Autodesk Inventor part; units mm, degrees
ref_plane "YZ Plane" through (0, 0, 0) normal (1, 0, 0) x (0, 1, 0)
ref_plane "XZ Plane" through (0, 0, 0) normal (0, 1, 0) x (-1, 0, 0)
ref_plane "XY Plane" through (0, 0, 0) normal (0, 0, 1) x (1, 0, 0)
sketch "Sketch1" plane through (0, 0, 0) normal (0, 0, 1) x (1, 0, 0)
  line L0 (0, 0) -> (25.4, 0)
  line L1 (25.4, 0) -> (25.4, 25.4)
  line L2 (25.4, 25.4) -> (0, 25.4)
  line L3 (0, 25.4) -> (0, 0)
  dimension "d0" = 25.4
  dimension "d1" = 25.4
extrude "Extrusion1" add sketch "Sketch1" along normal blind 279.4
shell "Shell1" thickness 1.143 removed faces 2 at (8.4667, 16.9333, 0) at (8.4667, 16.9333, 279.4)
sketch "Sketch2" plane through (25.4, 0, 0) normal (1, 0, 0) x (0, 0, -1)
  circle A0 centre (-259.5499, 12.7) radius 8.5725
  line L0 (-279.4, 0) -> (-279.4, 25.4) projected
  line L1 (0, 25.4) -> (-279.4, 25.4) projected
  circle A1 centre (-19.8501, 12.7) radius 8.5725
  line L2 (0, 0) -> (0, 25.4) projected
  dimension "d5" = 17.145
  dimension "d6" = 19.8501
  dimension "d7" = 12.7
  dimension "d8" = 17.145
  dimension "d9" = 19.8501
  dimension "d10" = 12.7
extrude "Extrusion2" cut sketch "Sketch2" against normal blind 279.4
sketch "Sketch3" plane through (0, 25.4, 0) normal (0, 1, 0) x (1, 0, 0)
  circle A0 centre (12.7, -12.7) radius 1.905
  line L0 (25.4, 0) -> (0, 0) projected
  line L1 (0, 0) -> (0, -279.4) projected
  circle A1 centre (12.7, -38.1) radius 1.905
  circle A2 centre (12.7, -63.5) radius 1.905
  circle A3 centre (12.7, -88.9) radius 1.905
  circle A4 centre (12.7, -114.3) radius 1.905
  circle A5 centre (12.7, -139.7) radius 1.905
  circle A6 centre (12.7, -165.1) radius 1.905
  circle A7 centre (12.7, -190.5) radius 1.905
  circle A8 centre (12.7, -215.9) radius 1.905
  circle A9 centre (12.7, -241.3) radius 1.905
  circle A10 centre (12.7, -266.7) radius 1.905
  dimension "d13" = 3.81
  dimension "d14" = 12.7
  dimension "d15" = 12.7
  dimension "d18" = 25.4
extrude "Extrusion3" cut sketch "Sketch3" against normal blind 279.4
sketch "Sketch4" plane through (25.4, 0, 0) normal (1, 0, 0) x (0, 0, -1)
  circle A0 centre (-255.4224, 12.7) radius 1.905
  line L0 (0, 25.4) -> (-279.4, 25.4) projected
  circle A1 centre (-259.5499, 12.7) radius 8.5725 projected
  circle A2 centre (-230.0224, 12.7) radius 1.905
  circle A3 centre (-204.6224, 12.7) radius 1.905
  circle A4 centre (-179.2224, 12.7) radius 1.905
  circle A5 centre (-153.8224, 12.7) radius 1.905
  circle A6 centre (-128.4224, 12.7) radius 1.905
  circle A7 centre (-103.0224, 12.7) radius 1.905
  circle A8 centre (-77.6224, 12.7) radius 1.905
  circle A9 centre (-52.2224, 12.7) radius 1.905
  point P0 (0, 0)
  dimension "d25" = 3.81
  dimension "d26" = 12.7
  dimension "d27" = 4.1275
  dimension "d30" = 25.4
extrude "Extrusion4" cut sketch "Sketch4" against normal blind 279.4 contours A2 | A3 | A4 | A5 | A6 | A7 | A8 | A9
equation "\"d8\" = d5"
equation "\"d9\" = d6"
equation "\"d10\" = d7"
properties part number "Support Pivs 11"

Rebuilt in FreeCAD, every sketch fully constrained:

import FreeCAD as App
import Part
import Sketcher
from FreeCAD import Vector
Q = App.Units.Quantity


def faces_at(feature, points):
    """Names of the faces that lie closest to the given points."""
    faces = feature.Shape.Faces
    near = lambda p: min(range(len(faces)), key=lambda i: faces[i].distToShape(Part.Vertex(*p))[0])
    return sorted({f"Face{near(p) + 1}" for p in points})


def add_polygon(sketch, points):
    """Adds a closed chain of lines whose ends are joined by coincident constraints."""
    first, n = sketch.GeometryCount, len(points)
    for a, b in zip(points, points[1:] + points[:1]):
        sketch.addGeometry(Part.LineSegment(App.Vector(*a, 0), App.Vector(*b, 0)), False)
    for i in range(n):
        sketch.addConstraint(Sketcher.Constraint("Coincident", first + i, 2, first + (i + 1) % n, 1))

doc = App.newDocument("Part")
body = doc.addObject("PartDesign::Body", "Body")

# Sketch on XY plane
sketch1 = body.newObject("Sketcher::SketchObject", "Sketch")
sketch1.AttachmentSupport = (doc.getObject("XY_Plane"), [""])
sketch1.MapMode = "FlatFace"
add_polygon(sketch1, [(0, 25), (0, 0), (25, 0), (25, 25)])  # lines 0-3
sketch1.addConstraint(Sketcher.Constraint("Vertical", 0))
sketch1.addConstraint(Sketcher.Constraint("Horizontal", 1))
sketch1.addConstraint(Sketcher.Constraint("Vertical", 2))
sketch1.addConstraint(Sketcher.Constraint("Horizontal", 3))
sketch1.addConstraint(Sketcher.Constraint("Coincident", 0, 2, -1, 1))
sketch1.addConstraint(Sketcher.Constraint("Equal", 3, 0))
sketch1.addConstraint(Sketcher.Constraint("DistanceX", 1, 1, 1, 2, Q("1 in")))
pad1 = body.newObject("PartDesign::Pad", "Pad")
pad1.Profile = sketch1
pad1.Length = Q("11 in")
doc.recompute()

thickness = body.newObject("PartDesign::Thickness", "Thickness")
thickness.Base = (pad1, faces_at(pad1, [(8.467, 16.933, 0), (8.467, 16.933, 279.4)]))
thickness.Value = Q("0.045 in")
thickness.Reversed = True
thickness.Join = "Intersection"

# Sketch on YZ plane
sketch2 = body.newObject("Sketcher::SketchObject", "Sketch001")
sketch2.AttachmentSupport = (doc.getObject("YZ_Plane"), [""])
sketch2.MapMode = "FlatFace"
sketch2.AttachmentOffset = App.Placement(Vector(0, 0, 1 * 25.4), App.Rotation())
sketch2.addGeometry(Part.Circle(Vector(13, 260, 0), Vector(0, 0, 1), 9), False)
sketch2.addGeometry(Part.Circle(Vector(13, 20, 0), Vector(0, 0, 1), 9), False)
sketch2.addConstraint(Sketcher.Constraint("Equal", 0, 1))
sketch2.addConstraint(Sketcher.Constraint("Vertical", 0, 3, 1, 3))
sketch2.addConstraint(Sketcher.Constraint("Diameter", 0, Q("0.675 in")))
sketch2.addConstraint(Sketcher.Constraint("DistanceX", -1, 1, 0, 3, Q("0.5 in")))
sketch2.addConstraint(Sketcher.Constraint("DistanceY", -1, 1, 1, 3, Q("0.7815 in")))
sketch2.addConstraint(Sketcher.Constraint("DistanceY", 1, 3, 0, 3, Q("9.437 in")))
pocket1 = body.newObject("PartDesign::Pocket", "Pocket")
pocket1.Profile = sketch2
pocket1.Length = Q("11 in")

# Sketch on XZ plane
sketch3 = body.newObject("Sketcher::SketchObject", "Sketch002")
sketch3.AttachmentSupport = (doc.getObject("XZ_Plane"), [""])
sketch3.MapMode = "FlatFace"
sketch3.AttachmentOffset = App.Placement(Vector(0, 0, -1 * 25.4), App.Rotation())
sketch3.addGeometry(Part.Circle(Vector(12.7, 12.7, 0), Vector(0, 0, 1), 1.9), False)
sketch3.addGeometry(Part.Circle(Vector(12.7, 38.1, 0), Vector(0, 0, 1), 1.9), False)
sketch3.addGeometry(Part.Circle(Vector(12.7, 63.5, 0), Vector(0, 0, 1), 1.9), False)
sketch3.addGeometry(Part.Circle(Vector(12.7, 88.9, 0), Vector(0, 0, 1), 1.9), False)
sketch3.addGeometry(Part.Circle(Vector(12.7, 114.3, 0), Vector(0, 0, 1), 1.9), False)
sketch3.addGeometry(Part.Circle(Vector(12.7, 139.7, 0), Vector(0, 0, 1), 1.9), False)
sketch3.addGeometry(Part.Circle(Vector(12.7, 165.1, 0), Vector(0, 0, 1), 1.9), False)
sketch3.addGeometry(Part.Circle(Vector(12.7, 190.5, 0), Vector(0, 0, 1), 1.9), False)
sketch3.addGeometry(Part.Circle(Vector(12.7, 215.9, 0), Vector(0, 0, 1), 1.9), False)
sketch3.addGeometry(Part.Circle(Vector(12.7, 241.3, 0), Vector(0, 0, 1), 1.9), False)
sketch3.addGeometry(Part.Circle(Vector(12.7, 266.7, 0), Vector(0, 0, 1), 1.9), False)
sketch3.addConstraint(Sketcher.Constraint("Equal", 0, 1))
sketch3.addConstraint(Sketcher.Constraint("Equal", 1, 2))
sketch3.addConstraint(Sketcher.Constraint("Equal", 2, 3))
sketch3.addConstraint(Sketcher.Constraint("Equal", 3, 4))
sketch3.addConstraint(Sketcher.Constraint("Equal", 4, 5))
sketch3.addConstraint(Sketcher.Constraint("Equal", 5, 6))
sketch3.addConstraint(Sketcher.Constraint("Equal", 6, 7))
sketch3.addConstraint(Sketcher.Constraint("Equal", 7, 8))
sketch3.addConstraint(Sketcher.Constraint("Equal", 8, 9))
sketch3.addConstraint(Sketcher.Constraint("Equal", 9, 10))
sketch3.addConstraint(Sketcher.Constraint("Vertical", 0, 3, 1, 3))
sketch3.addConstraint(Sketcher.Constraint("Vertical", 1, 3, 2, 3))
sketch3.addConstraint(Sketcher.Constraint("Vertical", 2, 3, 3, 3))
sketch3.addConstraint(Sketcher.Constraint("Vertical", 3, 3, 4, 3))
sketch3.addConstraint(Sketcher.Constraint("Vertical", 4, 3, 5, 3))
sketch3.addConstraint(Sketcher.Constraint("Vertical", 5, 3, 6, 3))
sketch3.addConstraint(Sketcher.Constraint("Vertical", 6, 3, 7, 3))
sketch3.addConstraint(Sketcher.Constraint("Vertical", 7, 3, 8, 3))
sketch3.addConstraint(Sketcher.Constraint("Vertical", 8, 3, 9, 3))
sketch3.addConstraint(Sketcher.Constraint("Vertical", 9, 3, 10, 3))
sketch3.addConstraint(Sketcher.Constraint("Diameter", 0, Q("0.15 in")))
sketch3.addConstraint(Sketcher.Constraint("DistanceY", 0, 3, 1, 3, Q("1 in")))
sketch3.addConstraint(Sketcher.Constraint("DistanceY", 1, 3, 2, 3, Q("1 in")))
sketch3.addConstraint(Sketcher.Constraint("DistanceY", 2, 3, 3, 3, Q("1 in")))
sketch3.addConstraint(Sketcher.Constraint("DistanceY", 3, 3, 4, 3, Q("1 in")))
sketch3.addConstraint(Sketcher.Constraint("DistanceY", 4, 3, 5, 3, Q("1 in")))
sketch3.addConstraint(Sketcher.Constraint("DistanceY", 5, 3, 6, 3, Q("1 in")))
sketch3.addConstraint(Sketcher.Constraint("DistanceY", 6, 3, 7, 3, Q("1 in")))
sketch3.addConstraint(Sketcher.Constraint("DistanceY", 7, 3, 8, 3, Q("1 in")))
sketch3.addConstraint(Sketcher.Constraint("DistanceY", 8, 3, 9, 3, Q("1 in")))
sketch3.addConstraint(Sketcher.Constraint("DistanceY", 9, 3, 10, 3, Q("1 in")))
sketch3.addConstraint(Sketcher.Constraint("DistanceX", -1, 1, 0, 3, Q("0.5 in")))
sketch3.addConstraint(Sketcher.Constraint("DistanceY", -1, 1, 0, 3, Q("0.5 in")))
pocket2 = body.newObject("PartDesign::Pocket", "Pocket001")
pocket2.Profile = sketch3
pocket2.Length = Q("11 in")
pocket2.Reversed = True

# Sketch on YZ plane
sketch4 = body.newObject("Sketcher::SketchObject", "Sketch003")
sketch4.AttachmentSupport = (doc.getObject("YZ_Plane"), [""])
sketch4.MapMode = "FlatFace"
sketch4.AttachmentOffset = App.Placement(Vector(0, 0, 1 * 25.4), App.Rotation())
sketch4.addGeometry(Part.Circle(Vector(12.7, 230, 0), Vector(0, 0, 1), 1.9), False)
sketch4.addGeometry(Part.Circle(Vector(12.7, 204.6, 0), Vector(0, 0, 1), 1.9), False)
sketch4.addGeometry(Part.Circle(Vector(12.7, 179.2, 0), Vector(0, 0, 1), 1.9), False)
sketch4.addGeometry(Part.Circle(Vector(12.7, 153.8, 0), Vector(0, 0, 1), 1.9), False)
sketch4.addGeometry(Part.Circle(Vector(12.7, 128.4, 0), Vector(0, 0, 1), 1.9), False)
sketch4.addGeometry(Part.Circle(Vector(12.7, 103, 0), Vector(0, 0, 1), 1.9), False)
sketch4.addGeometry(Part.Circle(Vector(12.7, 77.6, 0), Vector(0, 0, 1), 1.9), False)
sketch4.addGeometry(Part.Circle(Vector(12.7, 52.2, 0), Vector(0, 0, 1), 1.9), False)
sketch4.addConstraint(Sketcher.Constraint("Equal", 0, 1))
sketch4.addConstraint(Sketcher.Constraint("Equal", 1, 2))
sketch4.addConstraint(Sketcher.Constraint("Equal", 2, 3))
sketch4.addConstraint(Sketcher.Constraint("Equal", 3, 4))
sketch4.addConstraint(Sketcher.Constraint("Equal", 4, 5))
sketch4.addConstraint(Sketcher.Constraint("Equal", 5, 6))
sketch4.addConstraint(Sketcher.Constraint("Equal", 6, 7))
sketch4.addConstraint(Sketcher.Constraint("Vertical", 0, 3, 1, 3))
sketch4.addConstraint(Sketcher.Constraint("Vertical", 1, 3, 2, 3))
sketch4.addConstraint(Sketcher.Constraint("Vertical", 2, 3, 3, 3))
sketch4.addConstraint(Sketcher.Constraint("Vertical", 3, 3, 4, 3))
sketch4.addConstraint(Sketcher.Constraint("Vertical", 4, 3, 5, 3))
sketch4.addConstraint(Sketcher.Constraint("Vertical", 5, 3, 6, 3))
sketch4.addConstraint(Sketcher.Constraint("Vertical", 6, 3, 7, 3))
sketch4.addConstraint(Sketcher.Constraint("Diameter", 0, Q("0.15 in")))
sketch4.addConstraint(Sketcher.Constraint("DistanceY", 1, 3, 0, 3, Q("1 in")))
sketch4.addConstraint(Sketcher.Constraint("DistanceY", 2, 3, 1, 3, Q("1 in")))
sketch4.addConstraint(Sketcher.Constraint("DistanceY", 3, 3, 2, 3, Q("1 in")))
sketch4.addConstraint(Sketcher.Constraint("DistanceY", 4, 3, 3, 3, Q("1 in")))
sketch4.addConstraint(Sketcher.Constraint("DistanceY", 5, 3, 4, 3, Q("1 in")))
sketch4.addConstraint(Sketcher.Constraint("DistanceY", 6, 3, 5, 3, Q("1 in")))
sketch4.addConstraint(Sketcher.Constraint("DistanceY", 7, 3, 6, 3, Q("1 in")))
sketch4.addConstraint(Sketcher.Constraint("DistanceX", -1, 1, 0, 3, Q("0.5 in")))
sketch4.addConstraint(Sketcher.Constraint("DistanceY", -1, 1, 0, 3, Q("9.056 in")))
pocket3 = body.newObject("PartDesign::Pocket", "Pocket002")
pocket3.Profile = sketch4
pocket3.Length = Q("11 in")

doc.recompute()
